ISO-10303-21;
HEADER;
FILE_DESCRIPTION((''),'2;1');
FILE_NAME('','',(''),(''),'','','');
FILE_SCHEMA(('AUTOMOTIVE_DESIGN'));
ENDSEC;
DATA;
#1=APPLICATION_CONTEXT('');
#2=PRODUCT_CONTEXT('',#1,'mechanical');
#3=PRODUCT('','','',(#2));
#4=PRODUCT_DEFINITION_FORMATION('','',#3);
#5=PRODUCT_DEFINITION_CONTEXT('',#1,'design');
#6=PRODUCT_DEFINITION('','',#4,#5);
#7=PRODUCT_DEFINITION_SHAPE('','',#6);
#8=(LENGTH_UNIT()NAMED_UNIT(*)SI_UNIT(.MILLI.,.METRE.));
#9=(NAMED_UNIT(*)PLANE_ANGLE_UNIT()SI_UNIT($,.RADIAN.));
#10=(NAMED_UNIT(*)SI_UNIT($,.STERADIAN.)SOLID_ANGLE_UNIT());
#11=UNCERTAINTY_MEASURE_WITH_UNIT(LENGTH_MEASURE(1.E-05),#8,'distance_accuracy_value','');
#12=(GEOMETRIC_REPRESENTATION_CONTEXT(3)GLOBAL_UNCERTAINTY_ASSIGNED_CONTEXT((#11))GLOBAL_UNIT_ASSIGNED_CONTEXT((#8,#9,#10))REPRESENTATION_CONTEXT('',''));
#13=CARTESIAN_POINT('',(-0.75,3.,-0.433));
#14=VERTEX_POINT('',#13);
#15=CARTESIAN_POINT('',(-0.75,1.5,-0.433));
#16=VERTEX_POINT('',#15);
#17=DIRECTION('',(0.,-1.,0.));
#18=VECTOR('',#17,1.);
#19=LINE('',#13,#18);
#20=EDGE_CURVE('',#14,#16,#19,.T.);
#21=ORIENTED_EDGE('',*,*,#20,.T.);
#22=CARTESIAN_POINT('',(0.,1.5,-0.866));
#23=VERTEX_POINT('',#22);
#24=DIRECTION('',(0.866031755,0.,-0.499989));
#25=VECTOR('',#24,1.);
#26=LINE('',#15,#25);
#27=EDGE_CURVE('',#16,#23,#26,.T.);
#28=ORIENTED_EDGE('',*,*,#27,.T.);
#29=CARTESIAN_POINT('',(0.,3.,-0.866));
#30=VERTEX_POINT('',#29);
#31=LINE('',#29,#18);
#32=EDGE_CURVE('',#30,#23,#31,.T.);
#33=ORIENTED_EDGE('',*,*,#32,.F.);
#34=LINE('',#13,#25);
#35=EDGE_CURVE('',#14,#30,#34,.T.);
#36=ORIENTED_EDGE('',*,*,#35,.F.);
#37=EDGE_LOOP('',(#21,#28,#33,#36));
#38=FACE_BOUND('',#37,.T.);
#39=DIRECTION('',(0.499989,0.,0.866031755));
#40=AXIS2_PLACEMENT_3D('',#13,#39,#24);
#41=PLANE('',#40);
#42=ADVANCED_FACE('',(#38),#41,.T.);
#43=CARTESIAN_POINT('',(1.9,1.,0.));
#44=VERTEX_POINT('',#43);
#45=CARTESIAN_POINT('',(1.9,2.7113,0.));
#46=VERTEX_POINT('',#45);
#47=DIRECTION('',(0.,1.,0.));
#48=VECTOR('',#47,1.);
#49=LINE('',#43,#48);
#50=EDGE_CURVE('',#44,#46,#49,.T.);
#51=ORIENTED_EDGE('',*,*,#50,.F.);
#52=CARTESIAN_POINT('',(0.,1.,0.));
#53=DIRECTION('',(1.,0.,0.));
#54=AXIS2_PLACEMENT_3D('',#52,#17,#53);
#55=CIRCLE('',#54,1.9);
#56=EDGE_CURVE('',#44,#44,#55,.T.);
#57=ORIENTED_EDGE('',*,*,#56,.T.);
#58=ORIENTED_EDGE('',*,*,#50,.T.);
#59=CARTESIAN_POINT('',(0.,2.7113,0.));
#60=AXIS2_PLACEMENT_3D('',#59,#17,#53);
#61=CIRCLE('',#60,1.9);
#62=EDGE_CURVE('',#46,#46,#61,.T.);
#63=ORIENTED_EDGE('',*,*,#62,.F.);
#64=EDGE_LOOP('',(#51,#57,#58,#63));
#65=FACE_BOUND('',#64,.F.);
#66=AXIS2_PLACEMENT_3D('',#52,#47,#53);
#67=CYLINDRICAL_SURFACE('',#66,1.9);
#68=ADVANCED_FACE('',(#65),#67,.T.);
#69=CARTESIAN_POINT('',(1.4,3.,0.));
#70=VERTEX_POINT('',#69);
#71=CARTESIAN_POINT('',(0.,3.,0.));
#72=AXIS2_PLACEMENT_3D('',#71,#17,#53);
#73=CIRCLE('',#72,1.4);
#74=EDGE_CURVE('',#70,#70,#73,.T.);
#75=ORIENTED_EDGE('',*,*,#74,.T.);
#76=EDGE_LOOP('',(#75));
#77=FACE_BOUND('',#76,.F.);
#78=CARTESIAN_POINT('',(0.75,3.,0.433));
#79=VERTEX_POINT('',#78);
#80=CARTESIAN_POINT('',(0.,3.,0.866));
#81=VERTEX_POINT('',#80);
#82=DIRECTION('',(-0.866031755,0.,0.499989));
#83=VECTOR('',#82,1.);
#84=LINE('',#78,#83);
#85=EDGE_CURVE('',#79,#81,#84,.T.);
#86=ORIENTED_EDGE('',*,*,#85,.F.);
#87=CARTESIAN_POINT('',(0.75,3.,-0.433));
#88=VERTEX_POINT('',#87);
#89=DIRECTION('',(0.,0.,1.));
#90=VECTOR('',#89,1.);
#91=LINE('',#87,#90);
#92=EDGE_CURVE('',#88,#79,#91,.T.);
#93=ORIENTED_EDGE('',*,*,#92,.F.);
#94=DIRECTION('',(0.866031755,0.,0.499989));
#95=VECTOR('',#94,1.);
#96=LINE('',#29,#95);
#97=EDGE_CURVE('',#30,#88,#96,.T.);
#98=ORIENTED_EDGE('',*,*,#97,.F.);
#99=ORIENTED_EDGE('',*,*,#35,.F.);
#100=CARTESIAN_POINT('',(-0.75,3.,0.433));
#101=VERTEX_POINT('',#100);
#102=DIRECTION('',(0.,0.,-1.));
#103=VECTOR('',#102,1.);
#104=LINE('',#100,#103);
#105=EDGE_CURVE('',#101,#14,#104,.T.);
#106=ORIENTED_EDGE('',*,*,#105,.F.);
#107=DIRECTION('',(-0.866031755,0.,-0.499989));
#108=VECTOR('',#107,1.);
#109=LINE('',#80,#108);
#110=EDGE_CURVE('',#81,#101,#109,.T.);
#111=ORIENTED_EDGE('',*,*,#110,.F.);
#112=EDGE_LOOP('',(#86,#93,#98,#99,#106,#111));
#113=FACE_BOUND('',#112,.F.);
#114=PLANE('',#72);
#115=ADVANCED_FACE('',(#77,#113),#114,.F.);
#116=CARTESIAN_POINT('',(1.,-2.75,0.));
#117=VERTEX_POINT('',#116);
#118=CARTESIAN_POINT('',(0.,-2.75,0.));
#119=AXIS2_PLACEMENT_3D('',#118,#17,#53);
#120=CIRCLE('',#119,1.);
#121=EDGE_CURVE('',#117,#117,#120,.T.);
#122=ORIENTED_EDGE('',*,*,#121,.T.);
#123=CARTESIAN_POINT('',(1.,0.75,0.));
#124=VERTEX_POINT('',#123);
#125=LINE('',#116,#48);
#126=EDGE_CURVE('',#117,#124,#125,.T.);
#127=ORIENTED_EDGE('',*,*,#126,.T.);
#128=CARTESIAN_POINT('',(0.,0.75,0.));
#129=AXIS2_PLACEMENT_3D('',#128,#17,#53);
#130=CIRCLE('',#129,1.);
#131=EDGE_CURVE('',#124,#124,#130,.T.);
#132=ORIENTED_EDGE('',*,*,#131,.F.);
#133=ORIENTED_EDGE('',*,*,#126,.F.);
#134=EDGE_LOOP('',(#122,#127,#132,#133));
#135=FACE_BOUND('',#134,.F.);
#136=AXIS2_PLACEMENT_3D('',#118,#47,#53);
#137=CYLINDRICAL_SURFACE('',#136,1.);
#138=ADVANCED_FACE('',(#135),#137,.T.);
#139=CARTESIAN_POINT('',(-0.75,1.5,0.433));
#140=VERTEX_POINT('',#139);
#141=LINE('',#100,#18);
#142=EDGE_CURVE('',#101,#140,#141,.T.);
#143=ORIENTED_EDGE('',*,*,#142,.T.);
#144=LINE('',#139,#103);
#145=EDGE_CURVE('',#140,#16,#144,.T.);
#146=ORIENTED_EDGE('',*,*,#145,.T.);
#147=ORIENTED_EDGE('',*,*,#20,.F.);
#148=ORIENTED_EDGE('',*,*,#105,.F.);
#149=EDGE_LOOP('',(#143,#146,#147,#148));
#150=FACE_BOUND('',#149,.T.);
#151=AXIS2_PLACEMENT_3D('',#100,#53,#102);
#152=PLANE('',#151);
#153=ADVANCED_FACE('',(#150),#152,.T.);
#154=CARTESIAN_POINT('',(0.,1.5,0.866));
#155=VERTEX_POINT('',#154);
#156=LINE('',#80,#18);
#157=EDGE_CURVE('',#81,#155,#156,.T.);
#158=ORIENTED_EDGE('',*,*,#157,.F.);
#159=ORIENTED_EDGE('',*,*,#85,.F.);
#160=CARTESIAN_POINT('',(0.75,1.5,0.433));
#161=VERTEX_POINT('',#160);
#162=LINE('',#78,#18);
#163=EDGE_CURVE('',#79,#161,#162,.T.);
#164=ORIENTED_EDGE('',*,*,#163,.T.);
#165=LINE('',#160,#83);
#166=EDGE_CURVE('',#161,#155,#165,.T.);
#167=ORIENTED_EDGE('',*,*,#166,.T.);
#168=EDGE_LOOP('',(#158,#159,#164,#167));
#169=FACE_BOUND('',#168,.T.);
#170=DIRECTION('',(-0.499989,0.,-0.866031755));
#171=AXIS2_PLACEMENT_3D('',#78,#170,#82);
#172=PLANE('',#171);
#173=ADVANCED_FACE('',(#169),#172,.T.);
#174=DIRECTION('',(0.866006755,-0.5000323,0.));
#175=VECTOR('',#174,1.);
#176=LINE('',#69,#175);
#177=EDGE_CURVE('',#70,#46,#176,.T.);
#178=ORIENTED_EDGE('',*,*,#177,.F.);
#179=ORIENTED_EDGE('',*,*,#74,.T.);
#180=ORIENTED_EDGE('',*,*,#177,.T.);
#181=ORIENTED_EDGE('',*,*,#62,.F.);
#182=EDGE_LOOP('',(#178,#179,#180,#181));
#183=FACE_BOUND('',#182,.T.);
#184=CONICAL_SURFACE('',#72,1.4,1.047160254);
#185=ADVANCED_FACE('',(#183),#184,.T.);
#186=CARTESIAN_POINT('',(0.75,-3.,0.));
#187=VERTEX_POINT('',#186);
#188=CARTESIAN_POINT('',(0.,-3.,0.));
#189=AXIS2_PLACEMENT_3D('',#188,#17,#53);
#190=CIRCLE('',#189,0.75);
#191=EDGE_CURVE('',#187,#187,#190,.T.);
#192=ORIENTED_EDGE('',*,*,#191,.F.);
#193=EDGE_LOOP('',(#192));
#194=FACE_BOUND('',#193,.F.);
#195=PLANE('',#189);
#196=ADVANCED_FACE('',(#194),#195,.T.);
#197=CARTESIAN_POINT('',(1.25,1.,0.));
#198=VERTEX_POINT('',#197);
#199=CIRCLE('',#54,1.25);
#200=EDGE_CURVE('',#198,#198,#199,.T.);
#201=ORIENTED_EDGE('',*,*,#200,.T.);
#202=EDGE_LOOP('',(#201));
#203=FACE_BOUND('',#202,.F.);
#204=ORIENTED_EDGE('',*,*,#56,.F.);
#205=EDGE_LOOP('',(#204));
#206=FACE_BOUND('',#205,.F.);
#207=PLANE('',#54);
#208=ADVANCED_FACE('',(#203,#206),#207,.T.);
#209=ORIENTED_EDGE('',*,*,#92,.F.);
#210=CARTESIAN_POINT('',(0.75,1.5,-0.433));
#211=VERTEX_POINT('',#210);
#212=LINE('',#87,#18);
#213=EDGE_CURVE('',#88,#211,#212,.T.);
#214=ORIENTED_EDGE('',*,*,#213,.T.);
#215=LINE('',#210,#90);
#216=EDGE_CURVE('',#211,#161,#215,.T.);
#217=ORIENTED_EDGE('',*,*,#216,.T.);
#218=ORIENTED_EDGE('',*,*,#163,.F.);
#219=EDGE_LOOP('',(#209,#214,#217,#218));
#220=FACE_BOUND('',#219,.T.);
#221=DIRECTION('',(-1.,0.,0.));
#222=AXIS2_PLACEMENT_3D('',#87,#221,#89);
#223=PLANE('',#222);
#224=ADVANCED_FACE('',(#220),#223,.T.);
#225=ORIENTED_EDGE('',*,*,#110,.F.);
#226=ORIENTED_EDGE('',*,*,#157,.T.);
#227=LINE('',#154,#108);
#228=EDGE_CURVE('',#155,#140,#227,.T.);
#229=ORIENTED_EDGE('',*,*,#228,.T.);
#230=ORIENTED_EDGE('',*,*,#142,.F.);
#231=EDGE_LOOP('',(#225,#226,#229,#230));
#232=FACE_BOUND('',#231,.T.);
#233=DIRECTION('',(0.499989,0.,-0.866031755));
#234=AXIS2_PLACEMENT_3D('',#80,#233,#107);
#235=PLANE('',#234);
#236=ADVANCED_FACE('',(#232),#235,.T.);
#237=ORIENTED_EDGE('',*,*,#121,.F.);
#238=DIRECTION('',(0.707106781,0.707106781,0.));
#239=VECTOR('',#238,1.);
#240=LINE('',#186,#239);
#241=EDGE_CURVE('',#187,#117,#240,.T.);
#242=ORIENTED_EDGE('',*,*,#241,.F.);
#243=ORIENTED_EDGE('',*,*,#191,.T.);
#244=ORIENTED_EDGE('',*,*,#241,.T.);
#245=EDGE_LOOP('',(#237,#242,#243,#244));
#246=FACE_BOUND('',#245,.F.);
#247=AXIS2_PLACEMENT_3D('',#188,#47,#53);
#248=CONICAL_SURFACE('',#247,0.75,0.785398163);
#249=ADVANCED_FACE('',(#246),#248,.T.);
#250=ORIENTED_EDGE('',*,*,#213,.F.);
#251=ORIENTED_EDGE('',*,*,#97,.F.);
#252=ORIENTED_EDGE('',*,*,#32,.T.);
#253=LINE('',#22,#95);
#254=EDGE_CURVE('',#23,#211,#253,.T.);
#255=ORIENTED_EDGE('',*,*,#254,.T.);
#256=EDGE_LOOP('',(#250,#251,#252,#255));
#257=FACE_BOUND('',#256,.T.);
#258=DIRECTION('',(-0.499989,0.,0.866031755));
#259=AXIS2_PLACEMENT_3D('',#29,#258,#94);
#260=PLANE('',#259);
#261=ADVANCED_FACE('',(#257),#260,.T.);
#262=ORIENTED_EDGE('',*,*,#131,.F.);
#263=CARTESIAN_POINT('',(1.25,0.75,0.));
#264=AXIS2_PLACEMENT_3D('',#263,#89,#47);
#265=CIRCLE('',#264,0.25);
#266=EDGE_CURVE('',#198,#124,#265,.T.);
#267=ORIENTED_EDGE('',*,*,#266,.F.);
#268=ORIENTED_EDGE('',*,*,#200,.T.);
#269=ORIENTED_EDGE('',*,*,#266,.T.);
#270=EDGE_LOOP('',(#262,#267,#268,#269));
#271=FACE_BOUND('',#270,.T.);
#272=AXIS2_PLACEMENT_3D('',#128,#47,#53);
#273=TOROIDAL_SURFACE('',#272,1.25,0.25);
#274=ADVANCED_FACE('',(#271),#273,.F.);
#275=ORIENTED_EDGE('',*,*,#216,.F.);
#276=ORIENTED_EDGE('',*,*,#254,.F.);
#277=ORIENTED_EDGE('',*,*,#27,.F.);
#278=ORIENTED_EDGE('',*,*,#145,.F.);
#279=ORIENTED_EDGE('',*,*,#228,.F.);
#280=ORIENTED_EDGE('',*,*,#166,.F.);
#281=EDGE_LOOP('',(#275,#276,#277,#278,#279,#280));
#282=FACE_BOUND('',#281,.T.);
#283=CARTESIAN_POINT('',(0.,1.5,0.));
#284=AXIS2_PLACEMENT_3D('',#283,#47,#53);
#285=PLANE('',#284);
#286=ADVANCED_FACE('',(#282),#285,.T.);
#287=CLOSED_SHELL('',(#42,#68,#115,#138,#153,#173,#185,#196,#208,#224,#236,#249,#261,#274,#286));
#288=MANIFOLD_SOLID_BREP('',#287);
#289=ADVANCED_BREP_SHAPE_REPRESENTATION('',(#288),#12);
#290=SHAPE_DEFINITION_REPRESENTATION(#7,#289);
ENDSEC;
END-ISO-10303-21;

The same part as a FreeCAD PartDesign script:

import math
import FreeCAD as App
import Part
import Sketcher
from FreeCAD import Vector
Q = App.Units.Quantity

doc = App.newDocument("Part")
body = doc.addObject("PartDesign::Body", "Body")

# Sketch on XY plane
sketch1 = doc.addObject("Sketcher::SketchObject", "Sketch")
body.addObject(sketch1)
sketch1.AttachmentSupport = (doc.XY_Plane, [""])
sketch1.MapMode = "FlatFace"
sketch1.addGeometry([
    Part.LineSegment(Vector(1.4, 3, 0), Vector(0, 3, 0)),  # 0
    Part.LineSegment(Vector(0, 3, 0), Vector(0, -3, 0)),  # 1
    Part.LineSegment(Vector(0, -3, 0), Vector(0.75, -3, 0)),  # 2
    Part.LineSegment(Vector(0.75, -3, 0), Vector(1, -2.75, 0)),  # 3
    Part.LineSegment(Vector(1, -2.75, 0), Vector(1, 0.75, 0)),  # 4
    Part.ArcOfCircle(Part.Circle(Vector(1.25, 0.75, 0), Vector(0, 0, 1), 0.25), math.radians(90), math.radians(180)),  # 5
    Part.LineSegment(Vector(1.25, 1, 0), Vector(1.9, 1, 0)),  # 6
    Part.LineSegment(Vector(1.9, 1, 0), Vector(1.9, 2.71, 0)),  # 7
    Part.LineSegment(Vector(1.9, 2.71, 0), Vector(1.4, 3, 0)),  # 8
], False)
sketch1.addConstraint([
    Sketcher.Constraint("Coincident", 0, 2, 1, 1),
    Sketcher.Constraint("Coincident", 1, 2, 2, 1),
    Sketcher.Constraint("Coincident", 2, 2, 3, 1),
    Sketcher.Constraint("Coincident", 3, 2, 4, 1),
    Sketcher.Constraint("Tangent", 4, 2, 5, 2),
    Sketcher.Constraint("Tangent", 5, 1, 6, 1),
    Sketcher.Constraint("Coincident", 6, 2, 7, 1),
    Sketcher.Constraint("Coincident", 7, 2, 8, 1),
    Sketcher.Constraint("Coincident", 8, 2, 0, 1),
    Sketcher.Constraint("Horizontal", 0),
    Sketcher.Constraint("Vertical", 1),
    Sketcher.Constraint("Horizontal", 2),
    Sketcher.Constraint("Vertical", 4),
    Sketcher.Constraint("Horizontal", 6),
    Sketcher.Constraint("Vertical", 7),
    Sketcher.Constraint("Symmetric", 0, 2, 1, 2, -1, 1),
    Sketcher.Constraint("Radius", 5, 0.25),
    Sketcher.Constraint("DistanceY", 5, 1, 0, 2, 2.0),
    Sketcher.Constraint("DistanceY", 2, 2, 5, 1, 4.0),
    Sketcher.Constraint("DistanceX", 2, 2, 5, 3, 0.5),
    Sketcher.Constraint("DistanceX", 8, 2, 7, 2, 0.5),
    Sketcher.Constraint("Angle", 3, Q("45 deg")),
    Sketcher.Constraint("DistanceX", 0, 2, 0, 1, 1.4),
    Sketcher.Constraint("DistanceX", -1, 1, 3, 2, 1.0),
    Sketcher.Constraint("DistanceY", 7, 1, 7, 2, 1.7113),
])
revolution = doc.addObject("PartDesign::Revolution", "Revolution")
body.addObject(revolution)
revolution.Profile = sketch1
revolution.ReferenceAxis = (sketch1, ["V_Axis"])
revolution.Angle = 360

# Sketch on XZ plane
sketch2 = doc.addObject("Sketcher::SketchObject", "Sketch001")
body.addObject(sketch2)
sketch2.AttachmentSupport = (doc.XZ_Plane, [""])
sketch2.MapMode = "FlatFace"
sketch2.AttachmentOffset = App.Placement(Vector(0, 0, -3), App.Rotation())
sketch2.addGeometry([
    Part.LineSegment(Vector(-0.8, 0.4, 0), Vector(0, 0.9, 0)),  # 0
    Part.LineSegment(Vector(0, 0.9, 0), Vector(0.8, 0.4, 0)),  # 1
    Part.LineSegment(Vector(0.8, 0.4, 0), Vector(0.8, -0.4, 0)),  # 2
    Part.LineSegment(Vector(0.8, -0.4, 0), Vector(0, -0.9, 0)),  # 3
    Part.LineSegment(Vector(0, -0.9, 0), Vector(-0.8, -0.4, 0)),  # 4
    Part.LineSegment(Vector(-0.8, -0.4, 0), Vector(-0.8, 0.4, 0)),  # 5
], False)
sketch2.addConstraint([
    Sketcher.Constraint("Coincident", 0, 2, 1, 1),
    Sketcher.Constraint("Coincident", 1, 2, 2, 1),
    Sketcher.Constraint("Coincident", 2, 2, 3, 1),
    Sketcher.Constraint("Coincident", 3, 2, 4, 1),
    Sketcher.Constraint("Coincident", 4, 2, 5, 1),
    Sketcher.Constraint("Coincident", 5, 2, 0, 1),
    Sketcher.Constraint("Vertical", 2),
    Sketcher.Constraint("Vertical", 5),
    Sketcher.Constraint("Symmetric", 0, 2, 3, 2, -1, 1),
    Sketcher.Constraint("Symmetric", 1, 2, 4, 2, -1, 1),
    Sketcher.Constraint("PointOnObject", 0, 2, -2),
    Sketcher.Constraint("Parallel", 0, 3),
    Sketcher.Constraint("Horizontal", 2, 2, 4, 2),
    Sketcher.Constraint("DistanceX", 4, 2, 2, 2, 1.5),
    Sketcher.Constraint("Angle", 0, Q("29.9993 deg")),
    Sketcher.Constraint("DistanceY", 2, 2, 2, 1, 0.866),
])
pocket1 = doc.addObject("PartDesign::Pocket", "Pocket")
body.addObject(pocket1)
pocket1.Profile = sketch2
pocket1.Length = 1.5
pocket1.Reversed = True

doc.recompute()
